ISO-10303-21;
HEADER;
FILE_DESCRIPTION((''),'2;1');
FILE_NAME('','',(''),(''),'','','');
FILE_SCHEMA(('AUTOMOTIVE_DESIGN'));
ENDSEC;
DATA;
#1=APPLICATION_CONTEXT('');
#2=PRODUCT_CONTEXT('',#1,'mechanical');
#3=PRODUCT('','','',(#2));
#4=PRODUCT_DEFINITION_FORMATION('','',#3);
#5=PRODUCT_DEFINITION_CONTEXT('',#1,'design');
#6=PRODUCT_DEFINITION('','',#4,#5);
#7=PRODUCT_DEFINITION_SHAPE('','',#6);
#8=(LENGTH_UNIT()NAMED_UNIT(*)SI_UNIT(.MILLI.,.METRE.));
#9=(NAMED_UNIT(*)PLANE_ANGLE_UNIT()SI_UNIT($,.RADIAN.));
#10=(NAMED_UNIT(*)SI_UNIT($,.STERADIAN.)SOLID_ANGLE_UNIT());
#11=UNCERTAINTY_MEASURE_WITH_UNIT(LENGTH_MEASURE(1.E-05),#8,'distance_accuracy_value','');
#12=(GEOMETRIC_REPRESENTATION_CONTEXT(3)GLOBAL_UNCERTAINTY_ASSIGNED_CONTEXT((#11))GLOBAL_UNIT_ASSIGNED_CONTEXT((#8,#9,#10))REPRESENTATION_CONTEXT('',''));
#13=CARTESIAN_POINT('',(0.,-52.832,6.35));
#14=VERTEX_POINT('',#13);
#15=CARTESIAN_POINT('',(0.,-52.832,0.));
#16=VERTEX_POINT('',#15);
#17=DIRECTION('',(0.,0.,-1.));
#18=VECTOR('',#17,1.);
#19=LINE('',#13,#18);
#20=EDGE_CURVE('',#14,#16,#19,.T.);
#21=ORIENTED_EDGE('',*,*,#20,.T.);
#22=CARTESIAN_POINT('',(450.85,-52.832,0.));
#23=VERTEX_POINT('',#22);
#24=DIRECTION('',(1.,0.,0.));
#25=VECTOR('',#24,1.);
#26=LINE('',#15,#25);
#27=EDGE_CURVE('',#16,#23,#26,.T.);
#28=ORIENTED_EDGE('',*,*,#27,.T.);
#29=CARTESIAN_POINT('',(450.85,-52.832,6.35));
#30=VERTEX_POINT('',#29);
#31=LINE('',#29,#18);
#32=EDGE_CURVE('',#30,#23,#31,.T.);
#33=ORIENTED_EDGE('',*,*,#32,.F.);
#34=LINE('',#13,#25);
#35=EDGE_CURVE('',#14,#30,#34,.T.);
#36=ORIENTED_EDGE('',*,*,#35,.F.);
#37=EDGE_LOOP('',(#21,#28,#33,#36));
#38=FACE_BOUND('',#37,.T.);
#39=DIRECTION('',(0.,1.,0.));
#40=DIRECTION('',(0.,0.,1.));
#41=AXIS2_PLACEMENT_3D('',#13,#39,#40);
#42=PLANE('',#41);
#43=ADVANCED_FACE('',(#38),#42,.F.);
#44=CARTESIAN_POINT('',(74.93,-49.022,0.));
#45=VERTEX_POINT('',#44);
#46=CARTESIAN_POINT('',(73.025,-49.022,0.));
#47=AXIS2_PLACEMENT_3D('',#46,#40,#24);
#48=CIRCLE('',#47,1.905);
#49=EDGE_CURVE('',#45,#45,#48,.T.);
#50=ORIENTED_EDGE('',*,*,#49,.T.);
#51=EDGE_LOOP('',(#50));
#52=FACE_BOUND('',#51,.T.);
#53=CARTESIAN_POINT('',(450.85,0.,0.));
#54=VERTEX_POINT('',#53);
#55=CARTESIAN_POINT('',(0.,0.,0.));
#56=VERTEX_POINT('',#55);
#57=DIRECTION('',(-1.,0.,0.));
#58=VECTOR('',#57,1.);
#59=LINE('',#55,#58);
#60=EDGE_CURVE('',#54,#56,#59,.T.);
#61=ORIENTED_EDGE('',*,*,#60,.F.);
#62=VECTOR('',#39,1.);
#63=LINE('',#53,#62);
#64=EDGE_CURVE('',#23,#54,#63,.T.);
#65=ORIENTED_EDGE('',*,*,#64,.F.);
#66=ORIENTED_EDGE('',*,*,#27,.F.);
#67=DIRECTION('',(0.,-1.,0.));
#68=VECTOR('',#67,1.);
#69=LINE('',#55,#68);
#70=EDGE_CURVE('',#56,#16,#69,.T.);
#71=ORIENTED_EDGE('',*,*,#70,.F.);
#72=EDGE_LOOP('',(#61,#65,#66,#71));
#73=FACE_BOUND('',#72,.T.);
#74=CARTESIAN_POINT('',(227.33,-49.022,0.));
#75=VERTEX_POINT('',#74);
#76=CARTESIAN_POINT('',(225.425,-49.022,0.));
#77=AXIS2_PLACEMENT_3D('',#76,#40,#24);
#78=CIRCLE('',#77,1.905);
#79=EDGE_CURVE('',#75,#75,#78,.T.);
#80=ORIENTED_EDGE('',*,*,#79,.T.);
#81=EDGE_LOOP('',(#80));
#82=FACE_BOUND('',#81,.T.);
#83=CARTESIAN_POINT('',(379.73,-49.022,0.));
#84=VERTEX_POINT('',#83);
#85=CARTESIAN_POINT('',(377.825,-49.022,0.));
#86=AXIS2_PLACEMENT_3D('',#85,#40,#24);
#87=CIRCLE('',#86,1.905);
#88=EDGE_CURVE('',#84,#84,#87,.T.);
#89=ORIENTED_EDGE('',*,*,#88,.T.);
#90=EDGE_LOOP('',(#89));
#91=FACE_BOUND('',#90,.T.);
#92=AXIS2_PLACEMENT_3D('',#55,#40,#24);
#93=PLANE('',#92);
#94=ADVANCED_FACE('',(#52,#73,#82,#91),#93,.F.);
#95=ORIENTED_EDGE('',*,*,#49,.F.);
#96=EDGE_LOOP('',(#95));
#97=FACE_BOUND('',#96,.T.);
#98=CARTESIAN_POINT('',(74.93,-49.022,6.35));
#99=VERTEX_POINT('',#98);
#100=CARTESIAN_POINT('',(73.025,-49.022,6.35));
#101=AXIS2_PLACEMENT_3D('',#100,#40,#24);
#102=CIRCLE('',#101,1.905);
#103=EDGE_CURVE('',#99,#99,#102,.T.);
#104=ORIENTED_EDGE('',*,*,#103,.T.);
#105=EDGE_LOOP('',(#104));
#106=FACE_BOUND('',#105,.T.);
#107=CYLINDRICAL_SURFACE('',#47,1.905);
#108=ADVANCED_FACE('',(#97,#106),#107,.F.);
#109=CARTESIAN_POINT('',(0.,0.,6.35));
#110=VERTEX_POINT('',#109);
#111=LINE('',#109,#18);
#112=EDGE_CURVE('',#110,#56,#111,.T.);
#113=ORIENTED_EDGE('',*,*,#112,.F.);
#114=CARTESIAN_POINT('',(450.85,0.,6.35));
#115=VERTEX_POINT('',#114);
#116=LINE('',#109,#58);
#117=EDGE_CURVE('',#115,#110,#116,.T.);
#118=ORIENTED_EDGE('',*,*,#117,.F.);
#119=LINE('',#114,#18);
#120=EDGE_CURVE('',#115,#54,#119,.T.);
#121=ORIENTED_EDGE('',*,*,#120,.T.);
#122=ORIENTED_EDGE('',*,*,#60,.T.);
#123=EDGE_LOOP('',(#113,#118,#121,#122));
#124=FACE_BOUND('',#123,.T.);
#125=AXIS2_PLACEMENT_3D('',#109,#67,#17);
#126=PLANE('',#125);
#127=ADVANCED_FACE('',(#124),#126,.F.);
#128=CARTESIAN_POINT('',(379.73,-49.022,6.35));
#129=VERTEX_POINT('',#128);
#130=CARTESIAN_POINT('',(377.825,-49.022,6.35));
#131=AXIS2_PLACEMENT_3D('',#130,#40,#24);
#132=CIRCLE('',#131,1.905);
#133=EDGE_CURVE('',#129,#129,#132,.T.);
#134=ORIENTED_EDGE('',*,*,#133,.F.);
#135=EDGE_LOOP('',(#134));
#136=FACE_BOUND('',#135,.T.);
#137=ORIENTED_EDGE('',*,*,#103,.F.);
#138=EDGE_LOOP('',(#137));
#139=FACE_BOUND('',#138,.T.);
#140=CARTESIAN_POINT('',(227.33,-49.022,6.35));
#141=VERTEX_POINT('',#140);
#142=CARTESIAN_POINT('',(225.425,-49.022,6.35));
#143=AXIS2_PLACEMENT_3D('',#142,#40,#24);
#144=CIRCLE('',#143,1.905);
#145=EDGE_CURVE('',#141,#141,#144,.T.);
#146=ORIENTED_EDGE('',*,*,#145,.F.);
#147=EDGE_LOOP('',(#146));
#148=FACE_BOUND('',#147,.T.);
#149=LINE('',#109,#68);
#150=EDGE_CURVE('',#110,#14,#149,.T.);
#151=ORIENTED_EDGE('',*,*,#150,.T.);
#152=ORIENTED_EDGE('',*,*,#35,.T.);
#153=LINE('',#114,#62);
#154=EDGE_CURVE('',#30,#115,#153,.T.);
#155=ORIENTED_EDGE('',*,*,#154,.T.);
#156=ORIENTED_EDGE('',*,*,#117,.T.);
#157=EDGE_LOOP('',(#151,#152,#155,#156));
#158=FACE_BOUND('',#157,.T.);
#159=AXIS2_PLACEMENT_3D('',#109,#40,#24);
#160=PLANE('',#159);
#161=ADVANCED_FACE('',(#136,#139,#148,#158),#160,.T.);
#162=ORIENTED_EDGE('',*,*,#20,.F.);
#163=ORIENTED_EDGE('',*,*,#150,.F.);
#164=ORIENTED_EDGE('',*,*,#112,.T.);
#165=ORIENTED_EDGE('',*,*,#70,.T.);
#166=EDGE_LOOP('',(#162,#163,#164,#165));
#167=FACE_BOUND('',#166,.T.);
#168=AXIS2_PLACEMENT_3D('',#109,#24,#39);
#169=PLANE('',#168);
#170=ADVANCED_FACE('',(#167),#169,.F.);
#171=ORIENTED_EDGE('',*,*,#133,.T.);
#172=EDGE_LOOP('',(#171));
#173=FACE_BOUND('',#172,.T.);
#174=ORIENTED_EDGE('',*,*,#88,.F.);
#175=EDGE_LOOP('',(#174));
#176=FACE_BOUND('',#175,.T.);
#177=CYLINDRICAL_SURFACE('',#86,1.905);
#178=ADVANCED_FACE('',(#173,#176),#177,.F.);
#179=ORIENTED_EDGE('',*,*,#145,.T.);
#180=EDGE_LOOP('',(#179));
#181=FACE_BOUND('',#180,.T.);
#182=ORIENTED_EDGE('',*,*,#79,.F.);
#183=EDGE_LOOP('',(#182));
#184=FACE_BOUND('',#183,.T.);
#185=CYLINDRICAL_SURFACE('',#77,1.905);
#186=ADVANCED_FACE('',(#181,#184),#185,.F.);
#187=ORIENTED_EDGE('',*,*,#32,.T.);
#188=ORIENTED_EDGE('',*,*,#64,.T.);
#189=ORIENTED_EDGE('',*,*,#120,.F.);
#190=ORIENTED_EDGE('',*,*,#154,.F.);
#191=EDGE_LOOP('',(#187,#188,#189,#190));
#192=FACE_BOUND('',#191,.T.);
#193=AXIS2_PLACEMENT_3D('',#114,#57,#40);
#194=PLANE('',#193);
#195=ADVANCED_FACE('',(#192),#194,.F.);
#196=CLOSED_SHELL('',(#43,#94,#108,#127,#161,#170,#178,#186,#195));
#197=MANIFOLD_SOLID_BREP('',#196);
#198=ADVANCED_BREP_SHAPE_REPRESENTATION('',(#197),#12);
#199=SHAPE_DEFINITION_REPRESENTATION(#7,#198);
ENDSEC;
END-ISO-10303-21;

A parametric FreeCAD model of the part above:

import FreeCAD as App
import Part
import Sketcher

V = App.Vector
Q = App.Units.Quantity

doc = App.newDocument("Part")
body = doc.addObject("PartDesign::Body", "Body")

# Sketch on XY plane
sketch1 = doc.addObject("Sketcher::SketchObject", "Sketch")
body.addObject(sketch1)
sketch1.AttachmentSupport = (doc.XY_Plane, [""])
sketch1.MapMode = "FlatFace"
sketch1.addGeometry([
    Part.LineSegment(V(0, 0, 0), V(0, -52.832, 0)),
    Part.LineSegment(V(0, -52.832, 0), V(450.85, -52.832, 0)),
    Part.LineSegment(V(450.85, -52.832, 0), V(450.85, 0, 0)),
    Part.LineSegment(V(450.85, 0, 0), V(0, 0, 0)),
], False)
sketch1.addConstraint([
    Sketcher.Constraint("Coincident", 0, 2, 1, 1),
    Sketcher.Constraint("Coincident", 1, 2, 2, 1),
    Sketcher.Constraint("Coincident", 2, 2, 3, 1),
    Sketcher.Constraint("Coincident", 3, 2, 0, 1),
    Sketcher.Constraint("Vertical", 0),
    Sketcher.Constraint("Horizontal", 1),
    Sketcher.Constraint("Vertical", 2),
    Sketcher.Constraint("Horizontal", 3),
    Sketcher.Constraint("Coincident", 3, 2, -1, 1),
    Sketcher.Constraint("DistanceX", 1, 1, 1, 2, Q("17.75 in")),
    Sketcher.Constraint("DistanceY", 0, 2, 0, 1, Q("2.08 in")),
])
pad1 = doc.addObject("PartDesign::Pad", "Pad")
body.addObject(pad1)
pad1.Profile = sketch1
pad1.Length = Q("0.25 in")

# Sketch on XY plane
sketch2 = doc.addObject("Sketcher::SketchObject", "Sketch001")
body.addObject(sketch2)
sketch2.AttachmentSupport = (doc.XY_Plane, [""])
sketch2.MapMode = "FlatFace"
sketch2.AttachmentOffset = App.Placement(V(0, 0, 0.25 * 25.4), App.Rotation())
sketch2.addGeometry([
    Part.Circle(V(73.025, -49.022, 0), V(0, 0, 1), 1.905),
    Part.Circle(V(225.425, -49.022, 0), V(0, 0, 1), 1.905),
    Part.Circle(V(377.825, -49.022, 0), V(0, 0, 1), 1.905),
], False)
sketch2.addConstraint([
    Sketcher.Constraint("Equal", 0, 1),
    Sketcher.Constraint("Equal", 1, 2),
    Sketcher.Constraint("Horizontal", 0, 3, 1, 3),
    Sketcher.Constraint("Horizontal", 1, 3, 2, 3),
    Sketcher.Constraint("Diameter", 0, Q("0.15 in")),
    Sketcher.Constraint("DistanceX", 0, 3, 1, 3, Q("6 in")),
    Sketcher.Constraint("DistanceX", 1, 3, 2, 3, Q("6 in")),
    Sketcher.Constraint("DistanceY", 0, 3, -1, 1, Q("1.93 in")),
    Sketcher.Constraint("DistanceX", -1, 1, 0, 3, Q("2.875 in")),
])
pocket1 = doc.addObject("PartDesign::Pocket", "Pocket")
body.addObject(pocket1)
pocket1.Profile = sketch2
pocket1.Length = Q("0.25 in")

doc.recompute()
